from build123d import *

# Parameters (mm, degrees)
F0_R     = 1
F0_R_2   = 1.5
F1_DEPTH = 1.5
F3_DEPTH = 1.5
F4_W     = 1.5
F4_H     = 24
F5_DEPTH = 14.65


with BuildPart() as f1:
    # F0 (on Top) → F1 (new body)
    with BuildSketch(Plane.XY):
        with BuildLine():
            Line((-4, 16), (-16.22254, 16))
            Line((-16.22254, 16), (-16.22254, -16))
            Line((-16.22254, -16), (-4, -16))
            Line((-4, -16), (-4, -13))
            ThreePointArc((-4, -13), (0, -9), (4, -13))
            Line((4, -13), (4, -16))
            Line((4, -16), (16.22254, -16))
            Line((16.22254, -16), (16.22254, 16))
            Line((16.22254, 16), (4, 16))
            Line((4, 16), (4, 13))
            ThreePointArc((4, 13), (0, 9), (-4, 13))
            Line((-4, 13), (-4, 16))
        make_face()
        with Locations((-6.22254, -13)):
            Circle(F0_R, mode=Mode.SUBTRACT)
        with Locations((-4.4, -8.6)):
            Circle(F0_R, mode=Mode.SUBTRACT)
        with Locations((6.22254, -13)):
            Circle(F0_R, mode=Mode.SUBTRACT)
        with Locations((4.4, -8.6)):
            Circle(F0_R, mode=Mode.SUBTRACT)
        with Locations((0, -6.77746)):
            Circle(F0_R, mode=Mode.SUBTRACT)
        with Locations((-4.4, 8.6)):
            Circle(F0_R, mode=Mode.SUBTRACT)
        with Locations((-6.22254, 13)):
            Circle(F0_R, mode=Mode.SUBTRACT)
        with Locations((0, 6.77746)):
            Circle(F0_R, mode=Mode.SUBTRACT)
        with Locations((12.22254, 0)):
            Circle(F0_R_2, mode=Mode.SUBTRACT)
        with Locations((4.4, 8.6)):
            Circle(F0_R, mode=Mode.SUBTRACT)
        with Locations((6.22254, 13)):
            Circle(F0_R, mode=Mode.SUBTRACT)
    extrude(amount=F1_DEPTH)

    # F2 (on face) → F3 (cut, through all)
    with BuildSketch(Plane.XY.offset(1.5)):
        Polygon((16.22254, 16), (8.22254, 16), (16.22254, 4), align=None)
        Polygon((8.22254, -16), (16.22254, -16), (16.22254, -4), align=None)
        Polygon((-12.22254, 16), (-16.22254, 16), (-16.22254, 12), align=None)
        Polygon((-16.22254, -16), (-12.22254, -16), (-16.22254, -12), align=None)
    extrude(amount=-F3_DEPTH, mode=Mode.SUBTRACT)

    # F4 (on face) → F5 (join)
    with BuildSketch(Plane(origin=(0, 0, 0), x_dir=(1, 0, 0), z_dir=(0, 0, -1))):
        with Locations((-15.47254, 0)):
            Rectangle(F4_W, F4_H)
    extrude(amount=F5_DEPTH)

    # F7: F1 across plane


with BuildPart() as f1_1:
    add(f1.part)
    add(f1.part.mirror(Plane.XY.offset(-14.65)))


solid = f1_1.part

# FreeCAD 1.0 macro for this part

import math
import FreeCAD as App
import Part
import Sketcher

V = App.Vector
Q = App.Units.Quantity

doc = App.newDocument("Part")
body = doc.addObject("PartDesign::Body", "Body")

# Sketch on XY plane
sketch1 = doc.addObject("Sketcher::SketchObject", "Sketch")
body.addObject(sketch1)
sketch1.AttachmentSupport = (doc.XY_Plane, [""])
sketch1.MapMode = "FlatFace"
sketch1.addGeometry(Part.LineSegment(V(-4, 16, 0), V(-16.2, 16, 0)), False)
sketch1.addGeometry(Part.LineSegment(V(-16.2, 16, 0), V(-16.2, -16, 0)), False)
sketch1.addGeometry(Part.LineSegment(V(-16.2, -16, 0), V(-4, -16, 0)), False)
sketch1.addGeometry(Part.LineSegment(V(-4, -16, 0), V(-4, -13, 0)), False)
sketch1.addGeometry(Part.ArcOfCircle(Part.Circle(V(0, -13, 0), V(0, 0, 1), 4), math.radians(0), math.radians(180)), False)
sketch1.addGeometry(Part.LineSegment(V(4, -13, 0), V(4, -16, 0)), False)
sketch1.addGeometry(Part.LineSegment(V(4, -16, 0), V(16.2, -16, 0)), False)
sketch1.addGeometry(Part.LineSegment(V(16.2, -16, 0), V(16.2, 16, 0)), False)
sketch1.addGeometry(Part.LineSegment(V(16.2, 16, 0), V(4, 16, 0)), False)
sketch1.addGeometry(Part.LineSegment(V(4, 16, 0), V(4, 13, 0)), False)
sketch1.addGeometry(Part.ArcOfCircle(Part.Circle(V(0, 13, 0), V(0, 0, 1), 4), math.radians(180), math.radians(360)), False)
sketch1.addGeometry(Part.LineSegment(V(-4, 13, 0), V(-4, 16, 0)), False)
sketch1.addGeometry(Part.Circle(V(-6.2, -13, 0), V(0, 0, 1), 1), False)
sketch1.addGeometry(Part.Circle(V(-4.4, -8.6, 0), V(0, 0, 1), 1), False)
sketch1.addGeometry(Part.Circle(V(0, -6.8, 0), V(0, 0, 1), 1), False)
sketch1.addGeometry(Part.Circle(V(6.2, -13, 0), V(0, 0, 1), 1), False)
sketch1.addGeometry(Part.Circle(V(4.4, -8.6, 0), V(0, 0, 1), 1), False)
sketch1.addGeometry(Part.Circle(V(0, 6.8, 0), V(0, 0, 1), 1), False)
sketch1.addGeometry(Part.Circle(V(-4.4, 8.6, 0), V(0, 0, 1), 1), False)
sketch1.addGeometry(Part.Circle(V(-6.2, 13, 0), V(0, 0, 1), 1), False)
sketch1.addGeometry(Part.Circle(V(12.2, 0, 0), V(0, 0, 1), 1.5), False)
sketch1.addGeometry(Part.Circle(V(4.4, 8.6, 0), V(0, 0, 1), 1), False)
sketch1.addGeometry(Part.Circle(V(6.2, 13, 0), V(0, 0, 1), 1), False)
sketch1.addConstraint(Sketcher.Constraint("Coincident", 0, 2, 1, 1))
sketch1.addConstraint(Sketcher.Constraint("Coincident", 1, 2, 2, 1))
sketch1.addConstraint(Sketcher.Constraint("Coincident", 2, 2, 3, 1))
sketch1.addConstraint(Sketcher.Constraint("Tangent", 3, 2, 4, 2))
sketch1.addConstraint(Sketcher.Constraint("Tangent", 4, 1, 5, 1))
sketch1.addConstraint(Sketcher.Constraint("Coincident", 5, 2, 6, 1))
sketch1.addConstraint(Sketcher.Constraint("Coincident", 6, 2, 7, 1))
sketch1.addConstraint(Sketcher.Constraint("Coincident", 7, 2, 8, 1))
sketch1.addConstraint(Sketcher.Constraint("Coincident", 8, 2, 9, 1))
sketch1.addConstraint(Sketcher.Constraint("Tangent", 9, 2, 10, 2))
sketch1.addConstraint(Sketcher.Constraint("Tangent", 10, 1, 11, 1))
sketch1.addConstraint(Sketcher.Constraint("Coincident", 11, 2, 0, 1))
sketch1.addConstraint(Sketcher.Constraint("Horizontal", 0))
sketch1.addConstraint(Sketcher.Constraint("Vertical", 1))
sketch1.addConstraint(Sketcher.Constraint("Horizontal", 2))
sketch1.addConstraint(Sketcher.Constraint("Vertical", 3))
sketch1.addConstraint(Sketcher.Constraint("Vertical", 5))
sketch1.addConstraint(Sketcher.Constraint("Horizontal", 6))
sketch1.addConstraint(Sketcher.Constraint("Vertical", 7))
sketch1.addConstraint(Sketcher.Constraint("Horizontal", 8))
sketch1.addConstraint(Sketcher.Constraint("Vertical", 9))
sketch1.addConstraint(Sketcher.Constraint("Vertical", 11))
sketch1.addConstraint(Sketcher.Constraint("Equal", 4, 10))
sketch1.addConstraint(Sketcher.Constraint("Equal", 12, 13))
sketch1.addConstraint(Sketcher.Constraint("Equal", 13, 14))
sketch1.addConstraint(Sketcher.Constraint("Equal", 14, 15))
sketch1.addConstraint(Sketcher.Constraint("Equal", 15, 16))
sketch1.addConstraint(Sketcher.Constraint("Equal", 16, 17))
sketch1.addConstraint(Sketcher.Constraint("Equal", 17, 18))
sketch1.addConstraint(Sketcher.Constraint("Equal", 18, 19))
sketch1.addConstraint(Sketcher.Constraint("Equal", 19, 21))
sketch1.addConstraint(Sketcher.Constraint("Equal", 21, 22))
sketch1.addConstraint(Sketcher.Constraint("Symmetric", 4, 3, 10, 3, -1, 1))
sketch1.addConstraint(Sketcher.Constraint("Symmetric", 14, 3, 17, 3, -1, 1))
sketch1.addConstraint(Sketcher.Constraint("Symmetric", 16, 3, 18, 3, -1, 1))
sketch1.addConstraint(Sketcher.Constraint("Symmetric", 15, 3, 19, 3, -1, 1))
sketch1.addConstraint(Sketcher.Constraint("Symmetric", 13, 3, 21, 3, -1, 1))
sketch1.addConstraint(Sketcher.Constraint("Symmetric", 12, 3, 22, 3, -1, 1))
sketch1.addConstraint(Sketcher.Constraint("Symmetric", 0, 2, 6, 2, -1, 1))
sketch1.addConstraint(Sketcher.Constraint("Symmetric", 12, 3, 15, 3, -2))
sketch1.addConstraint(Sketcher.Constraint("Symmetric", 13, 3, 16, 3, -2))
sketch1.addConstraint(Sketcher.Constraint("Symmetric", 2, 2, 5, 2, -2))
sketch1.addConstraint(Sketcher.Constraint("PointOnObject", 14, 3, -2))
sketch1.addConstraint(Sketcher.Constraint("PointOnObject", 20, 3, -1))
sketch1.addConstraint(Sketcher.Constraint("Horizontal", 4, 3, 12, 3))
sketch1.addConstraint(Sketcher.Constraint("Horizontal", 0, 2, 7, 2))
sketch1.addConstraint(Sketcher.Constraint("Diameter", 12, Q("2 mm")))
sketch1.addConstraint(Sketcher.Constraint("Diameter", 20, Q("3 mm")))
sketch1.addConstraint(Sketcher.Constraint("Radius", 4, Q("4 mm")))
sketch1.addConstraint(Sketcher.Constraint("DistanceY", 1, 2, 1, 1, Q("32 mm")))
sketch1.addConstraint(Sketcher.Constraint("DistanceY", 3, 1, 3, 2, Q("3 mm")))
sketch1.addConstraint(Sketcher.Constraint("DistanceX", 15, 3, 20, 3, Q("6 mm")))
sketch1.addConstraint(Sketcher.Constraint("DistanceX", 0, 2, 19, 3, Q("10 mm")))
sketch1.addConstraint(Sketcher.Constraint("DistanceX", 13, 3, -1, 1, Q("4.4 mm")))
sketch1.addConstraint(Sketcher.Constraint("DistanceY", 13, 3, -1, 1, Q("8.6 mm")))
sketch1.addConstraint(Sketcher.Constraint("DistanceX", 0, 2, 0, 1, Q("12.22254 mm")))
sketch1.addConstraint(Sketcher.Constraint("DistanceY", 14, 3, -1, 1, Q("6.77746 mm")))
pad1 = doc.addObject("PartDesign::Pad", "Pad")
body.addObject(pad1)
pad1.Profile = sketch1
pad1.Length = 1.5

# Sketch on XY plane
sketch2 = doc.addObject("Sketcher::SketchObject", "Sketch001")
body.addObject(sketch2)
sketch2.AttachmentSupport = (doc.XY_Plane, [""])
sketch2.MapMode = "FlatFace"
sketch2.AttachmentOffset = App.Placement(V(0, 0, 1.5), App.Rotation())
sketch2.addGeometry(Part.LineSegment(V(16.2, 16, 0), V(8.2, 16, 0)), False)
sketch2.addGeometry(Part.LineSegment(V(8.2, 16, 0), V(16.2, 4, 0)), False)
sketch2.addGeometry(Part.LineSegment(V(16.2, 4, 0), V(16.2, 16, 0)), False)
sketch2.addGeometry(Part.LineSegment(V(8.2, -16, 0), V(16.2, -16, 0)), False)
sketch2.addGeometry(Part.LineSegment(V(16.2, -16, 0), V(16.2, -4, 0)), False)
sketch2.addGeometry(Part.LineSegment(V(16.2, -4, 0), V(8.2, -16, 0)), False)
sketch2.addGeometry(Part.LineSegment(V(-12.2, 16, 0), V(-16.2, 16, 0)), False)
sketch2.addGeometry(Part.LineSegment(V(-16.2, 16, 0), V(-16.2, 12, 0)), False)
sketch2.addGeometry(Part.LineSegment(V(-16.2, 12, 0), V(-12.2, 16, 0)), False)
sketch2.addGeometry(Part.LineSegment(V(-16.2, -16, 0), V(-12.2, -16, 0)), False)
sketch2.addGeometry(Part.LineSegment(V(-12.2, -16, 0), V(-16.2, -12, 0)), False)
sketch2.addGeometry(Part.LineSegment(V(-16.2, -12, 0), V(-16.2, -16, 0)), False)
sketch2.addConstraint(Sketcher.Constraint("Coincident", 0, 2, 1, 1))
sketch2.addConstraint(Sketcher.Constraint("Coincident", 1, 2, 2, 1))
sketch2.addConstraint(Sketcher.Constraint("Coincident", 2, 2, 0, 1))
sketch2.addConstraint(Sketcher.Constraint("Coincident", 3, 2, 4, 1))
sketch2.addConstraint(Sketcher.Constraint("Coincident", 4, 2, 5, 1))
sketch2.addConstraint(Sketcher.Constraint("Coincident", 5, 2, 3, 1))
sketch2.addConstraint(Sketcher.Constraint("Coincident", 6, 2, 7, 1))
sketch2.addConstraint(Sketcher.Constraint("Coincident", 7, 2, 8, 1))
sketch2.addConstraint(Sketcher.Constraint("Coincident", 8, 2, 6, 1))
sketch2.addConstraint(Sketcher.Constraint("Coincident", 9, 2, 10, 1))
sketch2.addConstraint(Sketcher.Constraint("Coincident", 10, 2, 11, 1))
sketch2.addConstraint(Sketcher.Constraint("Coincident", 11, 2, 9, 1))
sketch2.addConstraint(Sketcher.Constraint("Horizontal", 0))
sketch2.addConstraint(Sketcher.Constraint("Vertical", 2))
sketch2.addConstraint(Sketcher.Constraint("Horizontal", 3))
sketch2.addConstraint(Sketcher.Constraint("Vertical", 4))
sketch2.addConstraint(Sketcher.Constraint("Horizontal", 6))
sketch2.addConstraint(Sketcher.Constraint("Vertical", 7))
sketch2.addConstraint(Sketcher.Constraint("Horizontal", 9))
sketch2.addConstraint(Sketcher.Constraint("Vertical", 11))
sketch2.addConstraint(Sketcher.Constraint("Symmetric", 3, 2, 6, 2, -1, 1))
sketch2.addConstraint(Sketcher.Constraint("Symmetric", 2, 2, 11, 2, -1, 1))
sketch2.addConstraint(Sketcher.Constraint("Symmetric", 2, 2, 6, 2, -2))
sketch2.addConstraint(Sketcher.Constraint("Perpendicular", 8, 10))
sketch2.addConstraint(Sketcher.Constraint("Vertical", 0, 2, 5, 2))
sketch2.addConstraint(Sketcher.Constraint("Vertical", 8, 2, 9, 2))
sketch2.addConstraint(Sketcher.Constraint("Equal", 2, 4))
sketch2.addConstraint(Sketcher.Constraint("Equal", 9, 7))
sketch2.addConstraint(Sketcher.Constraint("DistanceX", 0, 2, 0, 1, Q("8 mm")))
sketch2.addConstraint(Sketcher.Constraint("DistanceX", 6, 2, 6, 1, Q("4 mm")))
sketch2.addConstraint(Sketcher.Constraint("DistanceY", 2, 1, 2, 2, Q("12 mm")))
sketch2.addConstraint(Sketcher.Constraint("DistanceY", -1, 1, 0, 2, Q("16 mm")))
sketch2.addConstraint(Sketcher.Constraint("DistanceX", -1, 1, 0, 2, Q("8.22254 mm")))
pocket1 = doc.addObject("PartDesign::Pocket", "Pocket")
body.addObject(pocket1)
pocket1.Profile = sketch2
pocket1.Type = "ThroughAll"

# Sketch on XY plane
sketch3 = doc.addObject("Sketcher::SketchObject", "Sketch002")
body.addObject(sketch3)
sketch3.AttachmentSupport = (doc.XY_Plane, [""])
sketch3.MapMode = "FlatFace"
sketch3.addGeometry(Part.LineSegment(V(-16.2, -12, 0), V(-16.2, 12, 0)), False)
sketch3.addGeometry(Part.LineSegment(V(-16.2, 12, 0), V(-14.7, 12, 0)), False)
sketch3.addGeometry(Part.LineSegment(V(-14.7, 12, 0), V(-14.7, -12, 0)), False)
sketch3.addGeometry(Part.LineSegment(V(-14.7, -12, 0), V(-16.2, -12, 0)), False)
sketch3.addConstraint(Sketcher.Constraint("Coincident", 0, 2, 1, 1))
sketch3.addConstraint(Sketcher.Constraint("Coincident", 1, 2, 2, 1))
sketch3.addConstraint(Sketcher.Constraint("Coincident", 2, 2, 3, 1))
sketch3.addConstraint(Sketcher.Constraint("Coincident", 3, 2, 0, 1))
sketch3.addConstraint(Sketcher.Constraint("Vertical", 0))
sketch3.addConstraint(Sketcher.Constraint("Horizontal", 1))
sketch3.addConstraint(Sketcher.Constraint("Vertical", 2))
sketch3.addConstraint(Sketcher.Constraint("Horizontal", 3))
sketch3.addConstraint(Sketcher.Constraint("DistanceY", 0, 1, 0, 2, Q("24 mm")))
sketch3.addConstraint(Sketcher.Constraint("DistanceX", 1, 1, 1, 2, Q("1.5 mm")))
sketch3.addConstraint(Sketcher.Constraint("DistanceY", -1, 1, 0, 2, Q("12 mm")))
sketch3.addConstraint(Sketcher.Constraint("DistanceX", 0, 2, -1, 1, Q("16.22254 mm")))
pad2 = doc.addObject("PartDesign::Pad", "Pad001")
body.addObject(pad2)
pad2.Profile = sketch3
pad2.Length = 14.65
pad2.Reversed = True
body2 = doc.addObject("PartDesign::Body", "Body001")
doc.recompute()

body2.BaseFeature = body
doc.recompute()

mirroring = doc.addObject("Part::Mirroring", "Mirroring")
mirroring.Source = body
mirroring.Base = V(0, 0, -14.65)
mirroring.Normal = V(0, 0, 1)
body3 = doc.addObject("PartDesign::Body", "Body002")
body3.BaseFeature = mirroring
boolean = doc.addObject("PartDesign::Boolean", "Boolean")
body2.addObject(boolean)
boolean.Type = "Fuse"
boolean.addObjects([body3])
doc.recompute()
mirroring.Visibility = False

doc.recompute()
